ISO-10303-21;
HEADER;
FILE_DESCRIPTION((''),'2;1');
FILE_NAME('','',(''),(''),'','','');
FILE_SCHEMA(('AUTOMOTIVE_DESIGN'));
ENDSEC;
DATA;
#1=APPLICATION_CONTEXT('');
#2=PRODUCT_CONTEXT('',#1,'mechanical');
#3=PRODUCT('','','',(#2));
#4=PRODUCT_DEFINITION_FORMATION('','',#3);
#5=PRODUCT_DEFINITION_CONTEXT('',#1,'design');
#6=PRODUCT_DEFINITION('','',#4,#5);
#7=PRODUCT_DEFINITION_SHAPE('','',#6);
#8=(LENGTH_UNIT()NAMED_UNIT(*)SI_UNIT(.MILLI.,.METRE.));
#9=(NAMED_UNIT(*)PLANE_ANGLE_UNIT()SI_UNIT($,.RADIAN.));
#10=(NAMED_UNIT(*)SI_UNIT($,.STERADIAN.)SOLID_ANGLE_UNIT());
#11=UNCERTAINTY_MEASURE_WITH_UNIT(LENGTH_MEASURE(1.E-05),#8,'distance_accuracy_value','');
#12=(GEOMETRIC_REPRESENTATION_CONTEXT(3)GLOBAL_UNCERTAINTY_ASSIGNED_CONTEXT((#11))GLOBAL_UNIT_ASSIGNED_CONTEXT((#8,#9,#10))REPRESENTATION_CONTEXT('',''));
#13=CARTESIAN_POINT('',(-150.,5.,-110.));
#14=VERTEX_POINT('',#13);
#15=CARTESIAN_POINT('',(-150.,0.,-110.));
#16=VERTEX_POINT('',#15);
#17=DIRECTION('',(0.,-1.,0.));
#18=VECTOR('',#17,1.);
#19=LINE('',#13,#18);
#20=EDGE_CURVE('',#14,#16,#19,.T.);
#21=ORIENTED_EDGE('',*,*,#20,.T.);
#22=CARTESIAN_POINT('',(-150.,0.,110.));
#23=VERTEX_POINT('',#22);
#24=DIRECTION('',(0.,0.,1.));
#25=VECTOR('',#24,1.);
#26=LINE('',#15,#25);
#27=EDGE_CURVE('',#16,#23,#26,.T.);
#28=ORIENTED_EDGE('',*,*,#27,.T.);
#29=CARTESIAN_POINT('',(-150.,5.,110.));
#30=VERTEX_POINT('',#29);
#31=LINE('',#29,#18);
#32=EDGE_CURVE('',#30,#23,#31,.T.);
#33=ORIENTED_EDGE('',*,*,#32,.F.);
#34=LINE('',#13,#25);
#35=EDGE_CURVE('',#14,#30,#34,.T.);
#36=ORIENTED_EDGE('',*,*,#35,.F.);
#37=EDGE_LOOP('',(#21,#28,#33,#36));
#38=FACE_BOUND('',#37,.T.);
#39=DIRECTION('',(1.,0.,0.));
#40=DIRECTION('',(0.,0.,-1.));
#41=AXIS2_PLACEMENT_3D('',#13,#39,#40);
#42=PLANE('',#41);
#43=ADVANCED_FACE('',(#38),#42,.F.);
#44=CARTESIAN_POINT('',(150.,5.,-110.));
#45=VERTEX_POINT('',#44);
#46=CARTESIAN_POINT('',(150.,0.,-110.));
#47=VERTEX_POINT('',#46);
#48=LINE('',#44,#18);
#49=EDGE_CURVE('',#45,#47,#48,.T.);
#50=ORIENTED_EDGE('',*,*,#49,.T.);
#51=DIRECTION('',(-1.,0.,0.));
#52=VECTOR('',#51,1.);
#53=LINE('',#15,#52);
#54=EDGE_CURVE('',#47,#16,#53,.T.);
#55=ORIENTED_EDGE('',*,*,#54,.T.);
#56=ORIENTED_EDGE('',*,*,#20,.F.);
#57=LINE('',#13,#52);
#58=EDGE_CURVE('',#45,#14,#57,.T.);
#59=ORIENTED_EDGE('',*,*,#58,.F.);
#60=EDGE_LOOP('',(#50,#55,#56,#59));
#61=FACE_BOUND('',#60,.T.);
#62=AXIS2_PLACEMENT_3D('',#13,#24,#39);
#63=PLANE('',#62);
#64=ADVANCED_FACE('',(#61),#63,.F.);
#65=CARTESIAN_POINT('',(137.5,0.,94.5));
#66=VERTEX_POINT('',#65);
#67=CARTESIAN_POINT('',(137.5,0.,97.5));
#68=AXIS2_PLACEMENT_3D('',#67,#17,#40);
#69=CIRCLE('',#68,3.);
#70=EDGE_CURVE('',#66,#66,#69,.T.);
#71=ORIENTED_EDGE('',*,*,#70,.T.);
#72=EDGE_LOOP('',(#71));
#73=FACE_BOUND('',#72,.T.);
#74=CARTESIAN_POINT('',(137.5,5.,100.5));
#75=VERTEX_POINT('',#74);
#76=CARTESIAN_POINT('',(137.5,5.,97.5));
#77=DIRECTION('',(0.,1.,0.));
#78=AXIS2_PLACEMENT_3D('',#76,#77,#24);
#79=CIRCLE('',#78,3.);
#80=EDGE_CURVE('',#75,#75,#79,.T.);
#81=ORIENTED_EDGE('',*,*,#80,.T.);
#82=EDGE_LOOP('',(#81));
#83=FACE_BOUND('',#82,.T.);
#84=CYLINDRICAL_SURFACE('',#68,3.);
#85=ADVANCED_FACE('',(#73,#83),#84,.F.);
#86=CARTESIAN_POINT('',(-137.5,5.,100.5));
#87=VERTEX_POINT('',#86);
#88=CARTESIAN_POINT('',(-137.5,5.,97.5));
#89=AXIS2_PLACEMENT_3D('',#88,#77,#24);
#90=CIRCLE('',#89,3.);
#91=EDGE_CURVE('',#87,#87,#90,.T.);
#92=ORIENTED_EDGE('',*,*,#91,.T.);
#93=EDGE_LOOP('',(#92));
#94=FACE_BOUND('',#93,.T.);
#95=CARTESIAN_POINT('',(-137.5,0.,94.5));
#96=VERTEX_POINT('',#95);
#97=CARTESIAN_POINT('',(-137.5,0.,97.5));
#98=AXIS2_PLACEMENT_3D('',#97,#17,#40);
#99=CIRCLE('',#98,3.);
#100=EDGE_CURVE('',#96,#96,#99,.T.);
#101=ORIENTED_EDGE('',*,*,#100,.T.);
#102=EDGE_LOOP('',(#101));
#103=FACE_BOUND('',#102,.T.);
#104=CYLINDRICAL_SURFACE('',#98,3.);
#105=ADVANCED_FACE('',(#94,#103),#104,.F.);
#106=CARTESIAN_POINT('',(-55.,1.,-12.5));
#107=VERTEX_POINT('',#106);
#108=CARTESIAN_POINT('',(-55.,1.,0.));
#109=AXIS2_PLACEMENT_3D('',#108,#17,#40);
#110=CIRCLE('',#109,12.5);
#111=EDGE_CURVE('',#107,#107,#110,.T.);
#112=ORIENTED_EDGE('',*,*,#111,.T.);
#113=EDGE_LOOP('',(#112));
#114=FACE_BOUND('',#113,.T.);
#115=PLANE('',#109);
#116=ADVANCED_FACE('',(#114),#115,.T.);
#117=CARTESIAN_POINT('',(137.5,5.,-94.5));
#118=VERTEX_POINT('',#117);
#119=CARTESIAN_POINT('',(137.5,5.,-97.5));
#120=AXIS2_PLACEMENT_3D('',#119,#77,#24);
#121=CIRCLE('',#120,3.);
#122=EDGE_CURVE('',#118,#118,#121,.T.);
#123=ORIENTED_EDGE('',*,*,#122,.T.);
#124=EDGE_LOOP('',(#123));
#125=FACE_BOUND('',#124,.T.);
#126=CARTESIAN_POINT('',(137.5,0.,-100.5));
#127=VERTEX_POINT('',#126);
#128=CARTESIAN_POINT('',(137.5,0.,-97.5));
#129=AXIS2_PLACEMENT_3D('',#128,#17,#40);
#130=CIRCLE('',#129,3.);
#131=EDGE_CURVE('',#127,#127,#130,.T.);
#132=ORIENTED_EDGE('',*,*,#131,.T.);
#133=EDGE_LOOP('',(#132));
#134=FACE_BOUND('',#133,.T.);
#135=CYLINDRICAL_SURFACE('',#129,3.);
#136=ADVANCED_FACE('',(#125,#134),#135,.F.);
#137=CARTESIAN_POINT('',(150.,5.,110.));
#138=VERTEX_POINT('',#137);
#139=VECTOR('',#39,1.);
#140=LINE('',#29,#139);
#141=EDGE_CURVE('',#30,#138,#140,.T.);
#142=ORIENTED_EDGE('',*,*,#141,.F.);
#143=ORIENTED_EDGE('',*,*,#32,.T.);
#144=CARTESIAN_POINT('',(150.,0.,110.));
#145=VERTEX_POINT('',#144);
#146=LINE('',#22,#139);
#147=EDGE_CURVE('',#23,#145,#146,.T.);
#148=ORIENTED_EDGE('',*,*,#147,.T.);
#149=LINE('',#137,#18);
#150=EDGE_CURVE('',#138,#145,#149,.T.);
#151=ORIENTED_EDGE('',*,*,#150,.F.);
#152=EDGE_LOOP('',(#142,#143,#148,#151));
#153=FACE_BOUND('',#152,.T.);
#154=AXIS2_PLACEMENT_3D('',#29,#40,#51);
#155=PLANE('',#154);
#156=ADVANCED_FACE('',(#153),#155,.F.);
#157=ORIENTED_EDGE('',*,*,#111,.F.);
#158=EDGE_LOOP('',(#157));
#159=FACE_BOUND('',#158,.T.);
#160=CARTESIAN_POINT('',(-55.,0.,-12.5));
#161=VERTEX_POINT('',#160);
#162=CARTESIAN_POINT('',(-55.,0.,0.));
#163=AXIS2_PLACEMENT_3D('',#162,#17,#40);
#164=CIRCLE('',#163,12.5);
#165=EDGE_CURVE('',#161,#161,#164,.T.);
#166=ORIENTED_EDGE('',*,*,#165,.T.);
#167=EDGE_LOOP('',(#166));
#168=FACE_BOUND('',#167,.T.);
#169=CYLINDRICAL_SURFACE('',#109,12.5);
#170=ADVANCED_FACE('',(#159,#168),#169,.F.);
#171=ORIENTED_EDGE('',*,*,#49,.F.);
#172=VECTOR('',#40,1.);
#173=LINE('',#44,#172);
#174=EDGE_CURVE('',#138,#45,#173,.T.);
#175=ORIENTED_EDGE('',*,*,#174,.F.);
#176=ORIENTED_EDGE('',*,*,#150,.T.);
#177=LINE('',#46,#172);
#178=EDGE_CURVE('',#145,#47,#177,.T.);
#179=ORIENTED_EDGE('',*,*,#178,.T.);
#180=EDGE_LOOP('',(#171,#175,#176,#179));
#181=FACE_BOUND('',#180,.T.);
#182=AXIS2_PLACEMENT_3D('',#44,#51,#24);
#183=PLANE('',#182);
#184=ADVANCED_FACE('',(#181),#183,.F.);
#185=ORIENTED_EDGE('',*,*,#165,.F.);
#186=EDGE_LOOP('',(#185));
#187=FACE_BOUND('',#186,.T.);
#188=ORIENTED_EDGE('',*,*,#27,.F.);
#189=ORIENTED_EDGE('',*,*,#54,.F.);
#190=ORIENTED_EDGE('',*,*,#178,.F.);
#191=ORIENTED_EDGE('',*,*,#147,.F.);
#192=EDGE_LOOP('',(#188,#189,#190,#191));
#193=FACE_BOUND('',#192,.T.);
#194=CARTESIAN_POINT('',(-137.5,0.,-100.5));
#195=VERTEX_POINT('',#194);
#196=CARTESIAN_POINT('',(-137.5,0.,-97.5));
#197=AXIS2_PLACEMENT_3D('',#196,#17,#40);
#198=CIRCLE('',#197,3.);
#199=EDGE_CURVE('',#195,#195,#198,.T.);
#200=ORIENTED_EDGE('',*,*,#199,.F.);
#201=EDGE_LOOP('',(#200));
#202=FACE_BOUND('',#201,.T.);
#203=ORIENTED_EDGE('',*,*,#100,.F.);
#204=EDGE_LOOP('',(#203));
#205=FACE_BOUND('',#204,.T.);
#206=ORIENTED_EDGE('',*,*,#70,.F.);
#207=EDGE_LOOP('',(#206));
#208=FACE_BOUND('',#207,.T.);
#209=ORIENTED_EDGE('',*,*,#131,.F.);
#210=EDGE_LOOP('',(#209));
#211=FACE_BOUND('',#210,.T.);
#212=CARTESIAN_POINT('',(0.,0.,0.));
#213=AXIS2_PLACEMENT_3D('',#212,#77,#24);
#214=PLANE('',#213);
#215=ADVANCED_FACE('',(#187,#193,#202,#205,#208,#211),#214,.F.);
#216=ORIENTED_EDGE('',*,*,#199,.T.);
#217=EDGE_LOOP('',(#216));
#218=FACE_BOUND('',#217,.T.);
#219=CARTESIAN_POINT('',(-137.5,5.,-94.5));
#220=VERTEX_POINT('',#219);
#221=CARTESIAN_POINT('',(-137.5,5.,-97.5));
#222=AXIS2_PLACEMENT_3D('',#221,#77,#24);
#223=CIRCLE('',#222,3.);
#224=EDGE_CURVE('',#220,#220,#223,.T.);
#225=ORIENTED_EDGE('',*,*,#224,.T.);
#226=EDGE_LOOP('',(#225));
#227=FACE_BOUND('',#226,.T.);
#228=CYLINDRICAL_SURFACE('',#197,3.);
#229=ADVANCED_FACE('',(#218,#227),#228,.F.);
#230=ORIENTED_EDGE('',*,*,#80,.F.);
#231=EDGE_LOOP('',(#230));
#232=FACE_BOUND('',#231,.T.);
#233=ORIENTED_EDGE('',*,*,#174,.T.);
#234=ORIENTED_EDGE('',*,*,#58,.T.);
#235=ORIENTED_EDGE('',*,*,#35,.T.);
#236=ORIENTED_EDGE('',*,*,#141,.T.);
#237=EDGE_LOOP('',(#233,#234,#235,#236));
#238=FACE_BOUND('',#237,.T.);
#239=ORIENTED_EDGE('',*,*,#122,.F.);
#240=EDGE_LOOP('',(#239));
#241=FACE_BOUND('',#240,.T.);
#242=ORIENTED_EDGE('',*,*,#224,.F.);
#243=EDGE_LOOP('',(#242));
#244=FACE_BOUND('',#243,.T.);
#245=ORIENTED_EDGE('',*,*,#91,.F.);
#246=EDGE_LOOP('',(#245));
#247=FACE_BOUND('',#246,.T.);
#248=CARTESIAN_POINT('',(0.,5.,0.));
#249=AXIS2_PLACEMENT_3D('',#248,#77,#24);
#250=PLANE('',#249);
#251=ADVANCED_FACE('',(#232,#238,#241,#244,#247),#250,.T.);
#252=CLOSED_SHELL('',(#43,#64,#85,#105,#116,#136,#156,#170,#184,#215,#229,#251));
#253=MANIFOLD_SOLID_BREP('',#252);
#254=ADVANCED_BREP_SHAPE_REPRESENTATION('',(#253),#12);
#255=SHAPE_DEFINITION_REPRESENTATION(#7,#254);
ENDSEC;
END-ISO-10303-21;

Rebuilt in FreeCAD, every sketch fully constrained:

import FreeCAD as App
import Part
import Sketcher
from FreeCAD import Vector

doc = App.newDocument("Part")
body = doc.addObject("PartDesign::Body", "Body")

# Sketch on XZ plane
sketch1 = body.newObject("Sketcher::SketchObject", "Sketch")
sketch1.AttachmentSupport = (doc.getObject("XZ_Plane"), [""])
sketch1.MapMode = "FlatFace"
sketch1.addGeometry(Part.LineSegment(Vector(-150, -110, 0), Vector(-150, 110, 0)), False)
sketch1.addGeometry(Part.LineSegment(Vector(-150, 110, 0), Vector(150, 110, 0)), False)
sketch1.addGeometry(Part.LineSegment(Vector(150, 110, 0), Vector(150, -110, 0)), False)
sketch1.addGeometry(Part.LineSegment(Vector(150, -110, 0), Vector(-150, -110, 0)), False)
sketch1.addConstraint(Sketcher.Constraint("Coincident", 0, 2, 1, 1))
sketch1.addConstraint(Sketcher.Constraint("Coincident", 1, 2, 2, 1))
sketch1.addConstraint(Sketcher.Constraint("Coincident", 2, 2, 3, 1))
sketch1.addConstraint(Sketcher.Constraint("Coincident", 3, 2, 0, 1))
sketch1.addConstraint(Sketcher.Constraint("Vertical", 0))
sketch1.addConstraint(Sketcher.Constraint("Horizontal", 1))
sketch1.addConstraint(Sketcher.Constraint("Vertical", 2))
sketch1.addConstraint(Sketcher.Constraint("Horizontal", 3))
sketch1.addConstraint(Sketcher.Constraint("Symmetric", 0, 2, 2, 2, -1, 1))
sketch1.addConstraint(Sketcher.Constraint("DistanceX", 1, 1, 1, 2, 300.0))
sketch1.addConstraint(Sketcher.Constraint("DistanceY", 0, 1, 0, 2, 220.0))
pad1 = body.newObject("PartDesign::Pad", "Pad")
pad1.Profile = sketch1
pad1.Length = 5
pad1.Reversed = True

# Sketch on XZ plane
sketch2 = body.newObject("Sketcher::SketchObject", "Sketch001")
sketch2.AttachmentSupport = (doc.getObject("XZ_Plane"), [""])
sketch2.MapMode = "FlatFace"
sketch2.addGeometry(Part.Circle(Vector(-55, 0, 0), Vector(0, 0, 1), 12), False)
sketch2.addConstraint(Sketcher.Constraint("PointOnObject", 0, 3, -1))
sketch2.addConstraint(Sketcher.Constraint("Diameter", 0, 25.0))
sketch2.addConstraint(Sketcher.Constraint("DistanceX", 0, 3, -1, 1, 55.0))
pocket1 = body.newObject("PartDesign::Pocket", "Pocket")
pocket1.Profile = sketch2
pocket1.Length = 1

# Sketch on XZ plane
sketch3 = body.newObject("Sketcher::SketchObject", "Sketch002")
sketch3.AttachmentSupport = (doc.getObject("XZ_Plane"), [""])
sketch3.MapMode = "FlatFace"
sketch3.addGeometry(Part.Circle(Vector(-137.5, 97.5, 0), Vector(0, 0, 1), 3), False)
sketch3.addGeometry(Part.Circle(Vector(-137.5, -97.5, 0), Vector(0, 0, 1), 3), False)
sketch3.addGeometry(Part.Circle(Vector(137.5, -97.5, 0), Vector(0, 0, 1), 3), False)
sketch3.addGeometry(Part.Circle(Vector(137.5, 97.5, 0), Vector(0, 0, 1), 3), False)
sketch3.addConstraint(Sketcher.Constraint("Equal", 0, 1))
sketch3.addConstraint(Sketcher.Constraint("Equal", 1, 2))
sketch3.addConstraint(Sketcher.Constraint("Equal", 2, 3))
sketch3.addConstraint(Sketcher.Constraint("Symmetric", 0, 3, 2, 3, -1, 1))
sketch3.addConstraint(Sketcher.Constraint("Symmetric", 1, 3, 3, 3, -1, 1))
sketch3.addConstraint(Sketcher.Constraint("Symmetric", 1, 3, 2, 3, -2))
sketch3.addConstraint(Sketcher.Constraint("Diameter", 0, 6.0))
sketch3.addConstraint(Sketcher.Constraint("DistanceY", 1, 3, 0, 3, 195.0))
sketch3.addConstraint(Sketcher.Constraint("DistanceX", 1, 3, 2, 3, 275.0))
doc.recompute()
hole = body.newObject("PartDesign::Hole", "Hole")
hole.Profile = sketch3
hole.ThreadType = "None"
hole.Diameter = 6
hole.DepthType = "Dimension"
hole.Depth = 10
hole.DrillPoint = "Angled"
hole.DrillPointAngle = 118

doc.recompute()
